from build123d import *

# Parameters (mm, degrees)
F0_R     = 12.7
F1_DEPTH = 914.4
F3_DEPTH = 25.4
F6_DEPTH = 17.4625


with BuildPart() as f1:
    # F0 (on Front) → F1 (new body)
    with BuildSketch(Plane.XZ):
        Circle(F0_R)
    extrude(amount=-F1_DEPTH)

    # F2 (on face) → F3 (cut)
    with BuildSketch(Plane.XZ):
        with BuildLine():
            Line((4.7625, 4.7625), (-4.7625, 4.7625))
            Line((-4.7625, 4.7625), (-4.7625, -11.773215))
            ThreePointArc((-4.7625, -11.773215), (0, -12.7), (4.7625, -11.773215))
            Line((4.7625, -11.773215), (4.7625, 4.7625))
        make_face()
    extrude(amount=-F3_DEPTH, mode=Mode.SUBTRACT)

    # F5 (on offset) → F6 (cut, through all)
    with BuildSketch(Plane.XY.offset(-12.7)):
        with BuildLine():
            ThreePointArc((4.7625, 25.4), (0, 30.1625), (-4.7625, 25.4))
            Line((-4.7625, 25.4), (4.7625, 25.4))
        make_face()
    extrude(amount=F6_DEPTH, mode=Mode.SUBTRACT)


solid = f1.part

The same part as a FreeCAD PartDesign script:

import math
import FreeCAD as App
import Part
import Sketcher

V = App.Vector
Q = App.Units.Quantity

doc = App.newDocument("Part")
body = doc.addObject("PartDesign::Body", "Body")

# Sketch on XZ plane
sketch1 = doc.addObject("Sketcher::SketchObject", "Sketch")
body.addObject(sketch1)
sketch1.AttachmentSupport = (doc.XZ_Plane, [""])
sketch1.MapMode = "FlatFace"
sketch1.addGeometry(Part.Circle(V(0, 0, 0), V(0, 0, 1), 13), False)
sketch1.addConstraint(Sketcher.Constraint("Coincident", 0, 3, -1, 1))
sketch1.addConstraint(Sketcher.Constraint("Diameter", 0, Q("1 in")))
pad1 = doc.addObject("PartDesign::Pad", "Pad")
body.addObject(pad1)
pad1.Profile = sketch1
pad1.Length = Q("36 in")
pad1.Reversed = True

# Sketch on XZ plane
sketch2 = doc.addObject("Sketcher::SketchObject", "Sketch001")
body.addObject(sketch2)
sketch2.AttachmentSupport = (doc.XZ_Plane, [""])
sketch2.MapMode = "FlatFace"
sketch2.addGeometry(Part.LineSegment(V(5, 5, 0), V(-5, 5, 0)), False)
sketch2.addGeometry(Part.LineSegment(V(-5, 5, 0), V(-5, -12, 0)), False)
sketch2.addGeometry(Part.ArcOfCircle(Part.Circle(V(0, 0, 0), V(0, 0, 1), 13), math.radians(-112), math.radians(-68)), False)
sketch2.addGeometry(Part.LineSegment(V(5, -12, 0), V(5, 5, 0)), False)
sketch2.addConstraint(Sketcher.Constraint("Coincident", 0, 2, 1, 1))
sketch2.addConstraint(Sketcher.Constraint("Coincident", 1, 2, 2, 1))
sketch2.addConstraint(Sketcher.Constraint("Coincident", 2, 2, 3, 1))
sketch2.addConstraint(Sketcher.Constraint("Coincident", 3, 2, 0, 1))
sketch2.addConstraint(Sketcher.Constraint("Horizontal", 0))
sketch2.addConstraint(Sketcher.Constraint("Vertical", 1))
sketch2.addConstraint(Sketcher.Constraint("Vertical", 3))
sketch2.addConstraint(Sketcher.Constraint("Coincident", 2, 3, -1, 1))
sketch2.addConstraint(Sketcher.Constraint("Horizontal", 1, 2, 2, 2))
sketch2.addConstraint(Sketcher.Constraint("Radius", 2, Q("0.5 in")))
sketch2.addConstraint(Sketcher.Constraint("DistanceX", 0, 2, 0, 1, Q("0.375 in")))
sketch2.addConstraint(Sketcher.Constraint("DistanceY", -1, 1, 0, 2, Q("0.1875 in")))
pocket1 = doc.addObject("PartDesign::Pocket", "Pocket")
body.addObject(pocket1)
pocket1.Profile = sketch2
pocket1.Length = Q("1 in")

# Sketch on XY plane
sketch3 = doc.addObject("Sketcher::SketchObject", "Sketch002")
body.addObject(sketch3)
sketch3.AttachmentSupport = (doc.XY_Plane, [""])
sketch3.MapMode = "FlatFace"
sketch3.AttachmentOffset = App.Placement(V(0, 0, -0.5 * 25.4), App.Rotation())
sketch3.addGeometry(Part.ArcOfCircle(Part.Circle(V(0, 25.4, 0), V(0, 0, 1), 4.8), math.radians(0), math.radians(180)), False)
sketch3.addGeometry(Part.LineSegment(V(-4.8, 25.4, 0), V(4.8, 25.4, 0)), False)
sketch3.addConstraint(Sketcher.Constraint("Coincident", 0, 1, 1, 2))
sketch3.addConstraint(Sketcher.Constraint("Coincident", 1, 1, 0, 2))
sketch3.addConstraint(Sketcher.Constraint("Horizontal", 1))
sketch3.addConstraint(Sketcher.Constraint("PointOnObject", 0, 3, -2))
sketch3.addConstraint(Sketcher.Constraint("DistanceY", -1, 1, 0, 3, Q("1 in")))
sketch3.addConstraint(Sketcher.Constraint("DistanceY", -1, 1, 0, 1, Q("1 in")))
sketch3.addConstraint(Sketcher.Constraint("Radius", 0, Q("0.1875 in")))
pocket2 = doc.addObject("PartDesign::Pocket", "Pocket001")
body.addObject(pocket2)
pocket2.Profile = sketch3
pocket2.Length = Q("0.6875 in")
pocket2.Reversed = True

doc.recompute()
